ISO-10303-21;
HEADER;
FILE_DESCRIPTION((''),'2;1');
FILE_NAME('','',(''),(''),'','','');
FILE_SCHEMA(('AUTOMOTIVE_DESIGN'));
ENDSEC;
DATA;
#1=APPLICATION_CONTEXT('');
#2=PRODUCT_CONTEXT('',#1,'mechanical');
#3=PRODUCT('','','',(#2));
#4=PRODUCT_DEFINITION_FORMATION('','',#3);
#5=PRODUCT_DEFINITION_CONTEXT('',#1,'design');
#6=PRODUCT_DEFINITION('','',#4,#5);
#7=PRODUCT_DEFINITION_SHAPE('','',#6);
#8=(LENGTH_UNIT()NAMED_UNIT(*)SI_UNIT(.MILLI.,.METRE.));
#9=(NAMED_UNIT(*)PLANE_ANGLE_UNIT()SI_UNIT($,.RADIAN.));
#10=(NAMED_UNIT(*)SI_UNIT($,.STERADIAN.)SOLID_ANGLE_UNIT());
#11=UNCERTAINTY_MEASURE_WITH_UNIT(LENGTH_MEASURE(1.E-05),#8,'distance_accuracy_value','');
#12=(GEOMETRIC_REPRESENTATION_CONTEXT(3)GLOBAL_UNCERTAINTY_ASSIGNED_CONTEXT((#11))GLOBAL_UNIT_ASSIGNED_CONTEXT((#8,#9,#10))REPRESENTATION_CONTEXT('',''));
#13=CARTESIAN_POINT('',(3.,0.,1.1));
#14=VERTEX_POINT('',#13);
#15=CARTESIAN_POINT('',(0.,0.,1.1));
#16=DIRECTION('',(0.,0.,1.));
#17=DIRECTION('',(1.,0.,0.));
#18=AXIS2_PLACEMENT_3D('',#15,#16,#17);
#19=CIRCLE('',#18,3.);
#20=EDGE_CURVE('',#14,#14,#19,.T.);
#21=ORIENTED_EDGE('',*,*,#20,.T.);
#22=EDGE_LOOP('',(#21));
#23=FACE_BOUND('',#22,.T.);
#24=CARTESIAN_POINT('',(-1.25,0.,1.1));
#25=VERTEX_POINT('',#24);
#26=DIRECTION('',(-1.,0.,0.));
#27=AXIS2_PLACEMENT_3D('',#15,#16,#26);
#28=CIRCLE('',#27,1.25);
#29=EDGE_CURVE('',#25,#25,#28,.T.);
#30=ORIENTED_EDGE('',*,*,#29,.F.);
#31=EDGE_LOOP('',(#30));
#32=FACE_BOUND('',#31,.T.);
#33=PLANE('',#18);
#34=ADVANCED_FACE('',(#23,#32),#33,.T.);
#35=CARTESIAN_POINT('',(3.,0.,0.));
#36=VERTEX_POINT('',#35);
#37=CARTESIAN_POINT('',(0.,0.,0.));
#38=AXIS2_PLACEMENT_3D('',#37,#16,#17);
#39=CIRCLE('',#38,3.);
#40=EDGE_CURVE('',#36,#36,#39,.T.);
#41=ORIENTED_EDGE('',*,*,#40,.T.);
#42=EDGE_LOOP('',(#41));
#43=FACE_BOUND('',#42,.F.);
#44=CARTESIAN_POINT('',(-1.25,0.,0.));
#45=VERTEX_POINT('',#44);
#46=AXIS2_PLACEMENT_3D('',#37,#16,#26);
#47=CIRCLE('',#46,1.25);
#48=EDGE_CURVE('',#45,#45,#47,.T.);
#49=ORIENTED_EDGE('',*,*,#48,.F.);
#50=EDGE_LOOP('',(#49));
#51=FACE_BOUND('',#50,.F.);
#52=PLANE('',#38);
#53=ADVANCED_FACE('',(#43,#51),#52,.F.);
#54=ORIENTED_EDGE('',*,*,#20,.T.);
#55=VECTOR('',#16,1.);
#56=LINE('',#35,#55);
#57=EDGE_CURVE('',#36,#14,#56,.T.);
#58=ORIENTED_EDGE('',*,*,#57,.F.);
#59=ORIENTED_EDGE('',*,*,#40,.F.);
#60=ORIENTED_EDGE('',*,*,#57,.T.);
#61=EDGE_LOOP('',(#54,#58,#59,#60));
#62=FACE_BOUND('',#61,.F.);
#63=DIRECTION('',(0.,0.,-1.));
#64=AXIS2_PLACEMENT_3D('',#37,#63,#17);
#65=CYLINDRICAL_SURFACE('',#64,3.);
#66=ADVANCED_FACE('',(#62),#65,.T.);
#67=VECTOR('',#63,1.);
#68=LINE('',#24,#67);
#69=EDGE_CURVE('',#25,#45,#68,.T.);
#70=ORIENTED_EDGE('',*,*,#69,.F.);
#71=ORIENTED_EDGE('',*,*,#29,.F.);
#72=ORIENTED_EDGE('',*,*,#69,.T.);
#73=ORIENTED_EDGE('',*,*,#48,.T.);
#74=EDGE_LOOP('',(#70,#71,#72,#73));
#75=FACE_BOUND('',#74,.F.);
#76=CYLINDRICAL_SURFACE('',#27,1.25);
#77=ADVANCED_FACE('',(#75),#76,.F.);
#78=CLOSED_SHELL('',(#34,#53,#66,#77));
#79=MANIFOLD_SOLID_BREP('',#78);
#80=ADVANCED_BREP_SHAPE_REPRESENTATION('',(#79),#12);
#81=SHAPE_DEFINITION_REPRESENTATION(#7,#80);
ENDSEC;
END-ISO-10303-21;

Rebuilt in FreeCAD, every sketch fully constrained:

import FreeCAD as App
import Part
import Sketcher

V = App.Vector
Q = App.Units.Quantity

doc = App.newDocument("Part")
body = doc.addObject("PartDesign::Body", "Body")

sketch1 = body.newObject("Sketcher::SketchObject", "Sketch")
sketch1.AttachmentSupport = (doc.getObject("XY_Plane"), [""])
sketch1.MapMode = "FlatFace"
sketch1.addGeometry(Part.Circle(V(0, 0, 0), V(0, 0, 1), 3), False)
sketch1.addConstraint(Sketcher.Constraint("Coincident", 0, 3, -1, 1))
sketch1.addConstraint(Sketcher.Constraint("Diameter", 0, Q("6 mm")))
pad1 = body.newObject("PartDesign::Pad", "Pad")
pad1.Profile = sketch1
pad1.Length = 1.1

sketch2 = body.newObject("Sketcher::SketchObject", "Sketch001")
sketch2.AttachmentSupport = (doc.getObject("XY_Plane"), [""])
sketch2.MapMode = "FlatFace"
sketch2.AttachmentOffset = App.Placement(V(0, 0, 1.1), App.Rotation())
sketch2.addGeometry(Part.Circle(V(0, 0, 0), V(0, 0, 1), 1.2), False)
sketch2.addConstraint(Sketcher.Constraint("Coincident", 0, 3, -1, 1))
sketch2.addConstraint(Sketcher.Constraint("Diameter", 0, Q("2.5 mm")))
pocket1 = body.newObject("PartDesign::Pocket", "Pocket")
pocket1.Profile = sketch2
pocket1.Length = 1.1

doc.recompute()
